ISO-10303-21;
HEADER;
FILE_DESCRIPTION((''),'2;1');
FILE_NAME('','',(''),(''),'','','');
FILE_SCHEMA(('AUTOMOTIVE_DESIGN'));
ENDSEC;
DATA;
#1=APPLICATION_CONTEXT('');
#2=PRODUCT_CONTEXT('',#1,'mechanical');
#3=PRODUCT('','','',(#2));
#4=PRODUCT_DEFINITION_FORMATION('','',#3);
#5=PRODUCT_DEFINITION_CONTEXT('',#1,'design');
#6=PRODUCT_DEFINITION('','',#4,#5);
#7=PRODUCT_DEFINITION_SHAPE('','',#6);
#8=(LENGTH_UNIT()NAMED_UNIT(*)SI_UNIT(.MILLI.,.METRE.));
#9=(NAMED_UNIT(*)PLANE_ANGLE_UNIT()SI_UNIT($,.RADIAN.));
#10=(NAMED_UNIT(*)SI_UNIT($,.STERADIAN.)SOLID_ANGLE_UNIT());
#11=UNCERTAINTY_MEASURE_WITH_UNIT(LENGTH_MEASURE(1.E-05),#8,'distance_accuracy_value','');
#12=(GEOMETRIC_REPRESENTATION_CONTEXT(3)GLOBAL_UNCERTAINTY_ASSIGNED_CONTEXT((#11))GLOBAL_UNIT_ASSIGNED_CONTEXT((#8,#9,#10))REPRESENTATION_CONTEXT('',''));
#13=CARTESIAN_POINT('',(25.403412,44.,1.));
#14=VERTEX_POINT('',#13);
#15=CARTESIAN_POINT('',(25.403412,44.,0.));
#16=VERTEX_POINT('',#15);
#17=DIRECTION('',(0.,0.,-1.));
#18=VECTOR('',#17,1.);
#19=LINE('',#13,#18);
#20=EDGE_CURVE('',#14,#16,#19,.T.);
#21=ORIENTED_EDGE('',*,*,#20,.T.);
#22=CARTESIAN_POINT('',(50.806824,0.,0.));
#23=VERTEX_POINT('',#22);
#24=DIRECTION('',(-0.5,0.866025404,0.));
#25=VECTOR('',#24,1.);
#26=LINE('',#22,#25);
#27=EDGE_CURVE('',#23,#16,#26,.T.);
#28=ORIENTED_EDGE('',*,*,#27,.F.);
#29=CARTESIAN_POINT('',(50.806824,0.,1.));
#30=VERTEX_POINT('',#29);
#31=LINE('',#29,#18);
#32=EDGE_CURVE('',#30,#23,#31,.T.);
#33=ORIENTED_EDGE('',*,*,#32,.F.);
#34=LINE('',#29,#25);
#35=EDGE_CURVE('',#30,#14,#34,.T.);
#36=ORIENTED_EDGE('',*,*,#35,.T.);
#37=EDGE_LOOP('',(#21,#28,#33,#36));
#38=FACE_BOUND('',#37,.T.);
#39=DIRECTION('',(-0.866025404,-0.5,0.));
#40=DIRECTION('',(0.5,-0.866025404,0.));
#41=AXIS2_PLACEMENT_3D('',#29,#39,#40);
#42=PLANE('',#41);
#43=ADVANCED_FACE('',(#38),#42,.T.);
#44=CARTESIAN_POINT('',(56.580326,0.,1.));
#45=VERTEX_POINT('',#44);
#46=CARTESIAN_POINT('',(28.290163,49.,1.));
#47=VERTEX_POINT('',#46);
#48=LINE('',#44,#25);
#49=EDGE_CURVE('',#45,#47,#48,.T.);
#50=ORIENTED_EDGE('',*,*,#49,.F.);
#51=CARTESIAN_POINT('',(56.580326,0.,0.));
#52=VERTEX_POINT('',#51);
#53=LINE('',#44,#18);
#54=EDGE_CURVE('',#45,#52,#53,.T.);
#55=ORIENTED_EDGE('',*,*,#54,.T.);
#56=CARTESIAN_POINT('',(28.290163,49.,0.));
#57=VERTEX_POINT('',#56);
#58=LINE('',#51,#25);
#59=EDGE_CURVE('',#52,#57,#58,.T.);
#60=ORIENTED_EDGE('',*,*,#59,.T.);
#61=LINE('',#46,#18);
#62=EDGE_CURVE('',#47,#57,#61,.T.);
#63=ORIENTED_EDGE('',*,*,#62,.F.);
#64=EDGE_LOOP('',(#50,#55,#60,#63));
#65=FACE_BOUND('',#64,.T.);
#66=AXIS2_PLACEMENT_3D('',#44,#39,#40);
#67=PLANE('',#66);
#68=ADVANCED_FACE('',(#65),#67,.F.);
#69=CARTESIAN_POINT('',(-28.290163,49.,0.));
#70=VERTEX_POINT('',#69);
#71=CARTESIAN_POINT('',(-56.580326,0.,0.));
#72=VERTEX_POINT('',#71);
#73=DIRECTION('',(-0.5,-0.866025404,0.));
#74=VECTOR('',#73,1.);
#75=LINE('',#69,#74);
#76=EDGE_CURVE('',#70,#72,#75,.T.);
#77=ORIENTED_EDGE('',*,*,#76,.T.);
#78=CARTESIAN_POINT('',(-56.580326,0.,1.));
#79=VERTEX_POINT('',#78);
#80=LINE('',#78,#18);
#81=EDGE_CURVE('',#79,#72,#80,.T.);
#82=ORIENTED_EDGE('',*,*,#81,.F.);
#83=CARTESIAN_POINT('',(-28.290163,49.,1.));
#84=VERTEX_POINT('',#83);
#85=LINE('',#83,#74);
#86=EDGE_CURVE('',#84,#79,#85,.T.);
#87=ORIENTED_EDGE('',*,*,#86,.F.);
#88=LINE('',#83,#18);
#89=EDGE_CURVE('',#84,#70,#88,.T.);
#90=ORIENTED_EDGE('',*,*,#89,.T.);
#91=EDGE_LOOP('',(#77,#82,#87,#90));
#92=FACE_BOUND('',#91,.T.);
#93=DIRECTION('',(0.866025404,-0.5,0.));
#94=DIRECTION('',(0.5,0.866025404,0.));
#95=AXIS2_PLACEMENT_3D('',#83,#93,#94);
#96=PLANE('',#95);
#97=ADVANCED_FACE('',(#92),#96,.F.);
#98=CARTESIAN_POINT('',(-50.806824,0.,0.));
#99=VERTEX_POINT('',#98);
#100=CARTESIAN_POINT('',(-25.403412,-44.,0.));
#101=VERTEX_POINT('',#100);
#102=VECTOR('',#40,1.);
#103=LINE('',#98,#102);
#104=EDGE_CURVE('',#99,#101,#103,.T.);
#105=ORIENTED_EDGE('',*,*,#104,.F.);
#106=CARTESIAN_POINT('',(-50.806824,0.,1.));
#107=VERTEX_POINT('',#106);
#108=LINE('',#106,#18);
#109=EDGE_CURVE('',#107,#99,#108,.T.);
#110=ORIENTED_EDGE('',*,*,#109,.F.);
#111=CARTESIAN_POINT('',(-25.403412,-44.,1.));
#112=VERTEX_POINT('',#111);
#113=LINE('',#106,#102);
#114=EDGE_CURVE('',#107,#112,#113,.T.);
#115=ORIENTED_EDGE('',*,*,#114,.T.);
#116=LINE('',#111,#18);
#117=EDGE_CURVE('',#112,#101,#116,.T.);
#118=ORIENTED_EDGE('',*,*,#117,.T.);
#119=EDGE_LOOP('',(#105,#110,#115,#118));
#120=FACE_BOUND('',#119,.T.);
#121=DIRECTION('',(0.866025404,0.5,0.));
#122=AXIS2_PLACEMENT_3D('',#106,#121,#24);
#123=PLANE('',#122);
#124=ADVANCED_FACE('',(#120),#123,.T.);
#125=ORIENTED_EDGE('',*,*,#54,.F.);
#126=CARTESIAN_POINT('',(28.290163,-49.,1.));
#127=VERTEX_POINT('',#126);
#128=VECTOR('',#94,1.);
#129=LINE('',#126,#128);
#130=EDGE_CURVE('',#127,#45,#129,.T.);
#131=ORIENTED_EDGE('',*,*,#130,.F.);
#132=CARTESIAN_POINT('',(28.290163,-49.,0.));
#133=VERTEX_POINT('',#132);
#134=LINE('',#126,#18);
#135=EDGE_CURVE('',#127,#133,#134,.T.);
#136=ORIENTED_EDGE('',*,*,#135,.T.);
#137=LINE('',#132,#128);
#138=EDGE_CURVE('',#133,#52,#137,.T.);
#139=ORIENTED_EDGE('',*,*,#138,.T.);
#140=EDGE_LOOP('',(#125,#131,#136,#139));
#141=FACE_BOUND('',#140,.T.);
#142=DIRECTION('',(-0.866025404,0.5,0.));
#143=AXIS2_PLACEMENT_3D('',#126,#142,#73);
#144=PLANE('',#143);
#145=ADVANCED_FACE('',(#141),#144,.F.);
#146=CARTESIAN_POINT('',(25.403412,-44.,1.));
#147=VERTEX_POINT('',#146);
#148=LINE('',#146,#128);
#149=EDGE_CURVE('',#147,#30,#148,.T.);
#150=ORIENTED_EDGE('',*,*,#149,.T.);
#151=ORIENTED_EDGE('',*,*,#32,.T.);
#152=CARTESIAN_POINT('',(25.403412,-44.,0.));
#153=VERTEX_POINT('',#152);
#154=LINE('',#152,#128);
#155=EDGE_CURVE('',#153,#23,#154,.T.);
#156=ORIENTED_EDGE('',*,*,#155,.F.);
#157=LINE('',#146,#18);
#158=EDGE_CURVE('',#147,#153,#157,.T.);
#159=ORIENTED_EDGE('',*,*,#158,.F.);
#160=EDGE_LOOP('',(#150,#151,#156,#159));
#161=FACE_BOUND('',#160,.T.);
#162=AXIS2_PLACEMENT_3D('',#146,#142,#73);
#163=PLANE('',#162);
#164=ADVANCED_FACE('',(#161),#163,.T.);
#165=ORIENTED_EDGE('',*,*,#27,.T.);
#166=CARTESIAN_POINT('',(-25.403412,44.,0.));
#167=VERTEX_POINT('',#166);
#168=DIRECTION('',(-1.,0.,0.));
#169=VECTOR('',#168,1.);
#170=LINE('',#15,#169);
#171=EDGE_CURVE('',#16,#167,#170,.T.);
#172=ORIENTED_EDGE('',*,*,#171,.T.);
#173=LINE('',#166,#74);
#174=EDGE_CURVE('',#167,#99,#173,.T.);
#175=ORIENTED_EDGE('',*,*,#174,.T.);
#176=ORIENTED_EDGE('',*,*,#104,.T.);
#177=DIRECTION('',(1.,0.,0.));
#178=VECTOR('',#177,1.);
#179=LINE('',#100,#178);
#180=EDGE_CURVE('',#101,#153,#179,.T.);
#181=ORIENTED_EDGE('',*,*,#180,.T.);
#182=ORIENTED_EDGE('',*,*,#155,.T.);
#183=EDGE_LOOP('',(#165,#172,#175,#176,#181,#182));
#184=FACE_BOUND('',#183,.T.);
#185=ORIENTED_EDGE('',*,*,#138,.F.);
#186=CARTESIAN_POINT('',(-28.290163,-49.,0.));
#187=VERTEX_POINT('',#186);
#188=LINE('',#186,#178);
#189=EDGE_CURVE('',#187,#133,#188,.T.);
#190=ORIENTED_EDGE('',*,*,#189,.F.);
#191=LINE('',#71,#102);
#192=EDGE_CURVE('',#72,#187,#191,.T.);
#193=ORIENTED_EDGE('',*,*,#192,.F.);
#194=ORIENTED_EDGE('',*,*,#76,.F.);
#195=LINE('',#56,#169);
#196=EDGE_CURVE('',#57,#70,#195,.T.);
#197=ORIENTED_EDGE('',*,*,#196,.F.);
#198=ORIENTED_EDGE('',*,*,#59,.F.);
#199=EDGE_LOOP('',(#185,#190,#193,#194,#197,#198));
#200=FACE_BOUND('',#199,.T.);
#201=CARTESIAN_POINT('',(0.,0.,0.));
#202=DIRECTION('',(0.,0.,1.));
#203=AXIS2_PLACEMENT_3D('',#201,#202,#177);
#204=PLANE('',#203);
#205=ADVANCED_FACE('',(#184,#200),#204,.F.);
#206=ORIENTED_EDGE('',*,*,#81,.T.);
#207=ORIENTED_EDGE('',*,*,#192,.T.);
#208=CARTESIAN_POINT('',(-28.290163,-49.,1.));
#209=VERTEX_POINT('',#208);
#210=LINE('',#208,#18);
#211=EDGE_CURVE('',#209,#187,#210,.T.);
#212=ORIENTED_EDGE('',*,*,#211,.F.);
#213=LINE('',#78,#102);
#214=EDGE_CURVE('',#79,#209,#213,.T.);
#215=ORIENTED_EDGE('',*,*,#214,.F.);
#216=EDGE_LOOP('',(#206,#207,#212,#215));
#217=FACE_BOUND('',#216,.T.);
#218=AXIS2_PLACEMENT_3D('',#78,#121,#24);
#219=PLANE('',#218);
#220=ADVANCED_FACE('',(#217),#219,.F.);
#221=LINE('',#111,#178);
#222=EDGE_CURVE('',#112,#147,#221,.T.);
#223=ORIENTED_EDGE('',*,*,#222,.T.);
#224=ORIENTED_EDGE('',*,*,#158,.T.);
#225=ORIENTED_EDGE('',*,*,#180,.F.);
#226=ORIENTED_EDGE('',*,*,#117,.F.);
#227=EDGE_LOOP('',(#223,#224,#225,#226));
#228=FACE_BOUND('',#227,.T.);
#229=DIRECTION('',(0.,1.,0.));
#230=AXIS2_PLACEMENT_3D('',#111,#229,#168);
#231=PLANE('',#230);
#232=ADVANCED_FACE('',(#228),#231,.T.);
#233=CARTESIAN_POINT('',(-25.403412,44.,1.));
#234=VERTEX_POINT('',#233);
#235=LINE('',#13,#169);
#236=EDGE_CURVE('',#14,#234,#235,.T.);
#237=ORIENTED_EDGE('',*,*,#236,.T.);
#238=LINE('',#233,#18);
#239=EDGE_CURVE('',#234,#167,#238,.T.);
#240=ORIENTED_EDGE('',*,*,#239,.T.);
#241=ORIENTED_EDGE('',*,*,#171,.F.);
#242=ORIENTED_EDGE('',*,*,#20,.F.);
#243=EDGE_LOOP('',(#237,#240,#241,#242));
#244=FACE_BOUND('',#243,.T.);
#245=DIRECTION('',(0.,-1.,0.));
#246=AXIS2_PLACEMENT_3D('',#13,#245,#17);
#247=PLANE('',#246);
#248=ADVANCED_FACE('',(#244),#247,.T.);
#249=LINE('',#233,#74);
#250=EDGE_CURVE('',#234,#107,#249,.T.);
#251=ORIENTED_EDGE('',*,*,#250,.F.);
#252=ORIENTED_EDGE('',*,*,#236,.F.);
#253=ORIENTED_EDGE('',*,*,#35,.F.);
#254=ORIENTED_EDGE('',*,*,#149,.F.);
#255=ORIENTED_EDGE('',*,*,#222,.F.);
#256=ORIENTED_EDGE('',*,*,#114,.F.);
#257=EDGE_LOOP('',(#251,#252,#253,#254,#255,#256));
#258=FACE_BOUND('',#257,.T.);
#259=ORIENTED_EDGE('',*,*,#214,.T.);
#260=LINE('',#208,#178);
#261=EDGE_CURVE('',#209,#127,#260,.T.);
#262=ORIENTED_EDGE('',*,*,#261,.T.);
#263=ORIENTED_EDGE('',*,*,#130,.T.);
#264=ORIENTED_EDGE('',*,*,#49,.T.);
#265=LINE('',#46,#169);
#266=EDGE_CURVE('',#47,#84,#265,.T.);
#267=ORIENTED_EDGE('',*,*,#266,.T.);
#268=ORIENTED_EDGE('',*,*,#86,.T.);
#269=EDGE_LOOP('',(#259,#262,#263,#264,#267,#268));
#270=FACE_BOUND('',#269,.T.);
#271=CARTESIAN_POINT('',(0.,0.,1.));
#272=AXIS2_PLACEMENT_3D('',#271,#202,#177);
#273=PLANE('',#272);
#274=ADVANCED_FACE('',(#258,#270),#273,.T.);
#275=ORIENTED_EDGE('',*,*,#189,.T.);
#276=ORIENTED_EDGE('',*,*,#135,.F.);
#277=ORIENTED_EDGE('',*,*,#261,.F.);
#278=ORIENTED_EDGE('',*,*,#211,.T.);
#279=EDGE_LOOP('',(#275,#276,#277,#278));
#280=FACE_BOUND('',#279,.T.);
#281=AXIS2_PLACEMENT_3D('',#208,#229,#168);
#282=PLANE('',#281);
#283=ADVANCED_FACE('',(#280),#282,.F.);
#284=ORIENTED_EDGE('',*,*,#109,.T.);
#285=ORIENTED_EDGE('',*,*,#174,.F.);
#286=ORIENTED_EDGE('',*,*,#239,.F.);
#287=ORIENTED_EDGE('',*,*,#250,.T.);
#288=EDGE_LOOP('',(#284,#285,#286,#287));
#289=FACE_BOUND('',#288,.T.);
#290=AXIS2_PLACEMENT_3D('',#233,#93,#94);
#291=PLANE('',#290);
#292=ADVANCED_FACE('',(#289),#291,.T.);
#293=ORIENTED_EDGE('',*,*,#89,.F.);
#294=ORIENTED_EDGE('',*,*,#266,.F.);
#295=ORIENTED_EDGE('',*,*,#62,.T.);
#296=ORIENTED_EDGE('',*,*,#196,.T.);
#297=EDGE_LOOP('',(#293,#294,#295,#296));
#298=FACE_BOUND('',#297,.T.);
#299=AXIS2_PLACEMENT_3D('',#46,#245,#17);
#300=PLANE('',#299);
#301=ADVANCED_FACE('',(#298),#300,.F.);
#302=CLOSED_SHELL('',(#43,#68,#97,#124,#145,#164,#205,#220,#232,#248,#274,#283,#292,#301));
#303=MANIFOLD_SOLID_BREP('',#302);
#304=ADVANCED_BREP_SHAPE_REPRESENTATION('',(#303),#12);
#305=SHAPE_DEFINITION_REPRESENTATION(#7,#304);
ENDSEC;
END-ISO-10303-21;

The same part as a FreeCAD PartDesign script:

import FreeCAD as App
import Part
import Sketcher
Q = App.Units.Quantity

doc = App.newDocument("Part")
body = doc.addObject("PartDesign::Body", "Body")

# Sketch on XY plane
sketch1 = body.newObject("Sketcher::SketchObject", "Sketch")
sketch1.AttachmentSupport = (doc.getObject("XY_Plane"), [""])
sketch1.MapMode = "FlatFace"
sketch1.addGeometry([
    Part.LineSegment(App.Vector(57, 0, 0), App.Vector(28, 49, 0)),  # 0
    Part.LineSegment(App.Vector(28, 49, 0), App.Vector(-28, 49, 0)),  # 1
    Part.LineSegment(App.Vector(-28, 49, 0), App.Vector(-57, 0, 0)),  # 2
    Part.LineSegment(App.Vector(-57, 0, 0), App.Vector(-28, -49, 0)),  # 3
    Part.LineSegment(App.Vector(-28, -49, 0), App.Vector(28, -49, 0)),  # 4
    Part.LineSegment(App.Vector(28, -49, 0), App.Vector(57, 0, 0)),  # 5
    Part.LineSegment(App.Vector(25, 44, 0), App.Vector(51, 0, 0)),  # 6
    Part.LineSegment(App.Vector(51, 0, 0), App.Vector(25, -44, 0)),  # 7
    Part.LineSegment(App.Vector(25, -44, 0), App.Vector(-25, -44, 0)),  # 8
    Part.LineSegment(App.Vector(-25, -44, 0), App.Vector(-51, 0, 0)),  # 9
    Part.LineSegment(App.Vector(-51, 0, 0), App.Vector(-25, 44, 0)),  # 10
    Part.LineSegment(App.Vector(-25, 44, 0), App.Vector(25, 44, 0)),  # 11
], False)
sketch1.addConstraint([
    Sketcher.Constraint("Coincident", 0, 2, 1, 1),
    Sketcher.Constraint("Coincident", 1, 2, 2, 1),
    Sketcher.Constraint("Coincident", 2, 2, 3, 1),
    Sketcher.Constraint("Coincident", 3, 2, 4, 1),
    Sketcher.Constraint("Coincident", 4, 2, 5, 1),
    Sketcher.Constraint("Coincident", 5, 2, 0, 1),
    Sketcher.Constraint("Coincident", 6, 2, 7, 1),
    Sketcher.Constraint("Coincident", 7, 2, 8, 1),
    Sketcher.Constraint("Coincident", 8, 2, 9, 1),
    Sketcher.Constraint("Coincident", 9, 2, 10, 1),
    Sketcher.Constraint("Coincident", 10, 2, 11, 1),
    Sketcher.Constraint("Coincident", 11, 2, 6, 1),
    Sketcher.Constraint("Horizontal", 1),
    Sketcher.Constraint("Horizontal", 4),
    Sketcher.Constraint("Horizontal", 8),
    Sketcher.Constraint("Horizontal", 11),
    Sketcher.Constraint("Symmetric", 0, 2, 3, 2, -1, 1),
    Sketcher.Constraint("Symmetric", 2, 2, 5, 2, -1, 1),
    Sketcher.Constraint("Symmetric", 6, 2, 9, 2, -1, 1),
    Sketcher.Constraint("Symmetric", 7, 2, 10, 2, -1, 1),
    Sketcher.Constraint("PointOnObject", 2, 2, -1),
    Sketcher.Constraint("PointOnObject", 6, 2, -1),
    Sketcher.Constraint("Parallel", 2, 5),
    Sketcher.Constraint("Parallel", 3, 6),
    Sketcher.Constraint("Parallel", 5, 7),
    Sketcher.Constraint("Parallel", 6, 9),
    Sketcher.Constraint("Vertical", 1, 2, 3, 2),
    Sketcher.Constraint("Angle", 0, Q("120 deg")),
    Sketcher.Constraint("DistanceY", -1, 1, 0, 2, Q("49 mm")),
    Sketcher.Constraint("DistanceY", 7, 2, -1, 1, Q("44 mm")),
    Sketcher.Constraint("DistanceX", 1, 2, 1, 1, Q("56.580326 mm")),
    Sketcher.Constraint("DistanceX", 8, 2, 8, 1, Q("50.806824 mm")),
])
pad1 = body.newObject("PartDesign::Pad", "Pad")
pad1.Profile = sketch1
pad1.Length = 1

doc.recompute()
